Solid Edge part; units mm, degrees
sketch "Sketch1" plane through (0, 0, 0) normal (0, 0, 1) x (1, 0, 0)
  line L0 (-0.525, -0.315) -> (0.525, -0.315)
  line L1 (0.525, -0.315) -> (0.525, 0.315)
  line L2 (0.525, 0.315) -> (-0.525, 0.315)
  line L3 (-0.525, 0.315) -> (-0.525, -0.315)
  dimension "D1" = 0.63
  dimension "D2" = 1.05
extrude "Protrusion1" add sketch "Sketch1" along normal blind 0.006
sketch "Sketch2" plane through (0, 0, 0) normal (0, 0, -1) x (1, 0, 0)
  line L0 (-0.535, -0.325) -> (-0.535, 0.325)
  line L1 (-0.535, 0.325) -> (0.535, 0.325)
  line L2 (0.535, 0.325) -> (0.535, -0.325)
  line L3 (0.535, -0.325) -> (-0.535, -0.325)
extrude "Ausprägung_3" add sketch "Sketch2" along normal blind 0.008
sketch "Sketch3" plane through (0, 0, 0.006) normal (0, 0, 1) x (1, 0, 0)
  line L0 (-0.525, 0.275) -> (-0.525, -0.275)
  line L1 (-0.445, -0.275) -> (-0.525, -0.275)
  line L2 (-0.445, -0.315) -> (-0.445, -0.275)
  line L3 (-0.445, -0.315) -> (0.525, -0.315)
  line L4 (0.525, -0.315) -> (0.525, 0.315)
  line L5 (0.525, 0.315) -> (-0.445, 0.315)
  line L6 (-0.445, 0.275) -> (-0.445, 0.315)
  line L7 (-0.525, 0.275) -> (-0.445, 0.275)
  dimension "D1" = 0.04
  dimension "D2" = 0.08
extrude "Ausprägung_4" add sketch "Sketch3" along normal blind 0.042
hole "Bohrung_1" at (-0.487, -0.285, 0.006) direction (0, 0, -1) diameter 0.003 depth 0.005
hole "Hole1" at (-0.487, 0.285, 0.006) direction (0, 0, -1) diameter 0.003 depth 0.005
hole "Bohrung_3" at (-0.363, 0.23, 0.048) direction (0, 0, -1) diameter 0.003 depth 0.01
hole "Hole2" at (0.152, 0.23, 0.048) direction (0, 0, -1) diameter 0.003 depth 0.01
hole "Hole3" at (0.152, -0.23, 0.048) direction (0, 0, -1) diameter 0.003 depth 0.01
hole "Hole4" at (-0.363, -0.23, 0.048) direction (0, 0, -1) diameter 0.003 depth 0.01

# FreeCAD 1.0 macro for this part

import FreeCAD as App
import Part
import Sketcher

V = App.Vector
Q = App.Units.Quantity


def add_polygon(sketch, points):
    """Adds a closed chain of lines whose ends are joined by coincident constraints."""
    first, n = sketch.GeometryCount, len(points)
    for a, b in zip(points, points[1:] + points[:1]):
        sketch.addGeometry(Part.LineSegment(App.Vector(*a, 0), App.Vector(*b, 0)), False)
    for i in range(n):
        sketch.addConstraint(Sketcher.Constraint("Coincident", first + i, 2, first + (i + 1) % n, 1))

doc = App.newDocument("Part")
body = doc.addObject("PartDesign::Body", "Body")

sketch1 = body.newObject("Sketcher::SketchObject", "Sketch")
sketch1.AttachmentSupport = (doc.getObject("XY_Plane"), [""])
sketch1.MapMode = "FlatFace"
add_polygon(sketch1, [(-0.5, 0.3), (-0.5, -0.3), (0.5, -0.3), (0.5, 0.3)])
sketch1.addConstraint(Sketcher.Constraint("Vertical", 0))
sketch1.addConstraint(Sketcher.Constraint("Horizontal", 1))
sketch1.addConstraint(Sketcher.Constraint("Vertical", 2))
sketch1.addConstraint(Sketcher.Constraint("Horizontal", 3))
sketch1.addConstraint(Sketcher.Constraint("Symmetric", 0, 2, 2, 2, -1, 1))
sketch1.addConstraint(Sketcher.Constraint("DistanceX", 0, 2, -1, 1, Q("0.525 mm")))
sketch1.addConstraint(Sketcher.Constraint("DistanceY", 0, 2, 0, 1, Q("0.63 mm")))
pad1 = body.newObject("PartDesign::Pad", "Pad")
pad1.Profile = sketch1
pad1.Length = 0.006

sketch2 = body.newObject("Sketcher::SketchObject", "Sketch001")
sketch2.AttachmentSupport = (doc.getObject("XY_Plane"), [""])
sketch2.MapMode = "FlatFace"
add_polygon(sketch2, [(-0.5, -0.3), (-0.5, 0.3), (0.5, 0.3), (0.5, -0.3)])
sketch2.addConstraint(Sketcher.Constraint("Vertical", 0))
sketch2.addConstraint(Sketcher.Constraint("Horizontal", 1))
sketch2.addConstraint(Sketcher.Constraint("Vertical", 2))
sketch2.addConstraint(Sketcher.Constraint("Horizontal", 3))
sketch2.addConstraint(Sketcher.Constraint("Symmetric", 0, 2, 2, 2, -1, 1))
sketch2.addConstraint(Sketcher.Constraint("DistanceX", 1, 1, 1, 2, Q("1.07 mm")))
sketch2.addConstraint(Sketcher.Constraint("DistanceY", 0, 1, 0, 2, Q("0.65 mm")))
pad2 = body.newObject("PartDesign::Pad", "Pad001")
pad2.Profile = sketch2
pad2.Length = 0.008
pad2.Reversed = True

sketch3 = body.newObject("Sketcher::SketchObject", "Sketch002")
sketch3.AttachmentSupport = (doc.getObject("XY_Plane"), [""])
sketch3.MapMode = "FlatFace"
sketch3.AttachmentOffset = App.Placement(V(0, 0, 0.006), App.Rotation())
add_polygon(sketch3, [(-0.445, 0.275), (-0.525, 0.275), (-0.525, -0.275), (-0.445, -0.275), (-0.445, -0.315), (0.525, -0.315), (0.525, 0.315), (-0.445, 0.315)])
sketch3.addConstraint(Sketcher.Constraint("Horizontal", 0))
sketch3.addConstraint(Sketcher.Constraint("Vertical", 1))
sketch3.addConstraint(Sketcher.Constraint("Horizontal", 2))
sketch3.addConstraint(Sketcher.Constraint("Vertical", 3))
sketch3.addConstraint(Sketcher.Constraint("Horizontal", 4))
sketch3.addConstraint(Sketcher.Constraint("Vertical", 5))
sketch3.addConstraint(Sketcher.Constraint("Horizontal", 6))
sketch3.addConstraint(Sketcher.Constraint("Vertical", 7))
sketch3.addConstraint(Sketcher.Constraint("Symmetric", 3, 2, 6, 2, -1))
sketch3.addConstraint(Sketcher.Constraint("Equal", 3, 7))
sketch3.addConstraint(Sketcher.Constraint("DistanceX", 0, 2, -1, 1, Q("0.525 mm")))
sketch3.addConstraint(Sketcher.Constraint("DistanceX", 2, 2, -1, 1, Q("0.445 mm")))
sketch3.addConstraint(Sketcher.Constraint("DistanceX", -1, 1, 4, 2, Q("0.525 mm")))
sketch3.addConstraint(Sketcher.Constraint("DistanceY", 1, 2, 1, 1, Q("0.55 mm")))
sketch3.addConstraint(Sketcher.Constraint("DistanceY", 3, 2, 3, 1, Q("0.04 mm")))
pad3 = body.newObject("PartDesign::Pad", "Pad002")
pad3.Profile = sketch3
pad3.Length = 0.042

sketch4 = body.newObject("Sketcher::SketchObject", "Sketch003")
sketch4.AttachmentSupport = (doc.getObject("XY_Plane"), [""])
sketch4.MapMode = "FlatFace"
sketch4.AttachmentOffset = App.Placement(V(0, 0, 0.006), App.Rotation())
sketch4.addGeometry(Part.Circle(V(-0.487, -0.285, 0), V(0, 0, 1), 0.0015), False)
sketch4.addConstraint(Sketcher.Constraint("Diameter", 0, Q("0.003 mm")))
sketch4.addConstraint(Sketcher.Constraint("DistanceX", 0, 3, -1, 1, Q("0.487 mm")))
sketch4.addConstraint(Sketcher.Constraint("DistanceY", 0, 3, -1, 1, Q("0.285 mm")))
doc.recompute()
hole = body.newObject("PartDesign::Hole", "Hole")
hole.Profile = sketch4
hole.ThreadType = "None"
hole.Diameter = 0.003
hole.DepthType = "Dimension"
hole.Depth = 0.005
hole.DrillPoint = "Flat"

sketch5 = body.newObject("Sketcher::SketchObject", "Sketch004")
sketch5.AttachmentSupport = (doc.getObject("XY_Plane"), [""])
sketch5.MapMode = "FlatFace"
sketch5.AttachmentOffset = App.Placement(V(0, 0, 0.006), App.Rotation())
sketch5.addGeometry(Part.Circle(V(-0.487, 0.285, 0), V(0, 0, 1), 0.0015), False)
sketch5.addConstraint(Sketcher.Constraint("Diameter", 0, Q("0.003 mm")))
sketch5.addConstraint(Sketcher.Constraint("DistanceX", 0, 3, -1, 1, Q("0.487 mm")))
sketch5.addConstraint(Sketcher.Constraint("DistanceY", -1, 1, 0, 3, Q("0.285 mm")))
doc.recompute()
hole2 = body.newObject("PartDesign::Hole", "Hole001")
hole2.Profile = sketch5
hole2.ThreadType = "None"
hole2.Diameter = 0.003
hole2.DepthType = "Dimension"
hole2.Depth = 0.005
hole2.DrillPoint = "Flat"

sketch6 = body.newObject("Sketcher::SketchObject", "Sketch005")
sketch6.AttachmentSupport = (doc.getObject("XY_Plane"), [""])
sketch6.MapMode = "FlatFace"
sketch6.AttachmentOffset = App.Placement(V(0, 0, 0.048), App.Rotation())
sketch6.addGeometry(Part.Circle(V(-0.363, 0.23, 0), V(0, 0, 1), 0.0015), False)
sketch6.addConstraint(Sketcher.Constraint("Diameter", 0, Q("0.003 mm")))
sketch6.addConstraint(Sketcher.Constraint("DistanceY", -1, 1, 0, 3, Q("0.23 mm")))
sketch6.addConstraint(Sketcher.Constraint("DistanceX", 0, 3, -1, 1, Q("0.363 mm")))
doc.recompute()
hole3 = body.newObject("PartDesign::Hole", "Hole002")
hole3.Profile = sketch6
hole3.ThreadType = "None"
hole3.Diameter = 0.003
hole3.DepthType = "Dimension"
hole3.Depth = 0.01
hole3.DrillPoint = "Flat"

sketch7 = body.newObject("Sketcher::SketchObject", "Sketch006")
sketch7.AttachmentSupport = (doc.getObject("XY_Plane"), [""])
sketch7.MapMode = "FlatFace"
sketch7.AttachmentOffset = App.Placement(V(0, 0, 0.048), App.Rotation())
sketch7.addGeometry(Part.Circle(V(0.152, 0.23, 0), V(0, 0, 1), 0.0015), False)
sketch7.addConstraint(Sketcher.Constraint("Diameter", 0, Q("0.003 mm")))
sketch7.addConstraint(Sketcher.Constraint("DistanceY", -1, 1, 0, 3, Q("0.23 mm")))
sketch7.addConstraint(Sketcher.Constraint("DistanceX", -1, 1, 0, 3, Q("0.152 mm")))
doc.recompute()
hole4 = body.newObject("PartDesign::Hole", "Hole003")
hole4.Profile = sketch7
hole4.ThreadType = "None"
hole4.Diameter = 0.003
hole4.DepthType = "Dimension"
hole4.Depth = 0.01
hole4.DrillPoint = "Flat"

sketch8 = body.newObject("Sketcher::SketchObject", "Sketch007")
sketch8.AttachmentSupport = (doc.getObject("XY_Plane"), [""])
sketch8.MapMode = "FlatFace"
sketch8.AttachmentOffset = App.Placement(V(0, 0, 0.048), App.Rotation())
sketch8.addGeometry(Part.Circle(V(0.152, -0.23, 0), V(0, 0, 1), 0.0015), False)
sketch8.addConstraint(Sketcher.Constraint("Diameter", 0, Q("0.003 mm")))
sketch8.addConstraint(Sketcher.Constraint("DistanceY", 0, 3, -1, 1, Q("0.23 mm")))
sketch8.addConstraint(Sketcher.Constraint("DistanceX", -1, 1, 0, 3, Q("0.152 mm")))
doc.recompute()
hole5 = body.newObject("PartDesign::Hole", "Hole004")
hole5.Profile = sketch8
hole5.ThreadType = "None"
hole5.Diameter = 0.003
hole5.DepthType = "Dimension"
hole5.Depth = 0.01
hole5.DrillPoint = "Flat"

sketch9 = body.newObject("Sketcher::SketchObject", "Sketch008")
sketch9.AttachmentSupport = (doc.getObject("XY_Plane"), [""])
sketch9.MapMode = "FlatFace"
sketch9.AttachmentOffset = App.Placement(V(0, 0, 0.048), App.Rotation())
sketch9.addGeometry(Part.Circle(V(-0.363, -0.23, 0), V(0, 0, 1), 0.0015), False)
sketch9.addConstraint(Sketcher.Constraint("Diameter", 0, Q("0.003 mm")))
sketch9.addConstraint(Sketcher.Constraint("DistanceY", 0, 3, -1, 1, Q("0.23 mm")))
sketch9.addConstraint(Sketcher.Constraint("DistanceX", 0, 3, -1, 1, Q("0.363 mm")))
doc.recompute()
hole6 = body.newObject("PartDesign::Hole", "Hole005")
hole6.Profile = sketch9
hole6.ThreadType = "None"
hole6.Diameter = 0.003
hole6.DepthType = "Dimension"
hole6.Depth = 0.01
hole6.DrillPoint = "Flat"

doc.recompute()
